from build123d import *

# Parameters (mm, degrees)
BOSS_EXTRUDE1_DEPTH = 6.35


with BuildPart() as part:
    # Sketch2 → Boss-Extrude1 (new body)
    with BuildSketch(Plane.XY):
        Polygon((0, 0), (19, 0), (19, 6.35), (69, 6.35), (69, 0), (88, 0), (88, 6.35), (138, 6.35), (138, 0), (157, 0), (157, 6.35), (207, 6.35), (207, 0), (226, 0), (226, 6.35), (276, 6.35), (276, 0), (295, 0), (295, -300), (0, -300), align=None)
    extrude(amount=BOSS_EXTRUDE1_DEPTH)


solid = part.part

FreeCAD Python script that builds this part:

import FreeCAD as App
import Part
import Sketcher

V = App.Vector

doc = App.newDocument("Part")
params = doc.addObject("Spreadsheet::Sheet", "Params")
for row, (alias, value) in enumerate([
    ("sketch1_width", "19 mm"),
    ("sketch1_width2", "295 mm"),
    ("sketch1_height", "300 mm"),
    ("sketch1_height2", "6.35 mm"),
    ("pad1_length", "6.35 mm"),
], start=1):
    params.set(f"A{row}", alias)
    params.set(f"B{row}", "=" + value)
    params.setAlias(f"B{row}", alias)

body = doc.addObject("PartDesign::Body", "Body")

# Sketch on XY plane
sketch1 = body.newObject("Sketcher::SketchObject", "Sketch")
sketch1.AttachmentSupport = (doc.getObject("XY_Plane"), [""])
sketch1.MapMode = "FlatFace"
sketch1.addGeometry([
    Part.LineSegment(V(19, 0, 0), V(0, 0, 0)),  # 0
    Part.LineSegment(V(0, 0, 0), V(0, -300, 0)),  # 1
    Part.LineSegment(V(0, -300, 0), V(295, -300, 0)),  # 2
    Part.LineSegment(V(295, -300, 0), V(295, 0, 0)),  # 3
    Part.LineSegment(V(295, 0, 0), V(276, 0, 0)),  # 4
    Part.LineSegment(V(276, 0, 0), V(276, 6, 0)),  # 5
    Part.LineSegment(V(276, 6, 0), V(226, 6, 0)),  # 6
    Part.LineSegment(V(226, 6, 0), V(226, 0, 0)),  # 7
    Part.LineSegment(V(226, 0, 0), V(207, 0, 0)),  # 8
    Part.LineSegment(V(207, 0, 0), V(207, 6, 0)),  # 9
    Part.LineSegment(V(207, 6, 0), V(157, 6, 0)),  # 10
    Part.LineSegment(V(157, 6, 0), V(157, 0, 0)),  # 11
    Part.LineSegment(V(157, 0, 0), V(138, 0, 0)),  # 12
    Part.LineSegment(V(138, 0, 0), V(138, 6, 0)),  # 13
    Part.LineSegment(V(138, 6, 0), V(88, 6, 0)),  # 14
    Part.LineSegment(V(88, 6, 0), V(88, 0, 0)),  # 15
    Part.LineSegment(V(88, 0, 0), V(69, 0, 0)),  # 16
    Part.LineSegment(V(69, 0, 0), V(69, 6, 0)),  # 17
    Part.LineSegment(V(69, 6, 0), V(19, 6, 0)),  # 18
    Part.LineSegment(V(19, 6, 0), V(19, 0, 0)),  # 19
], False)
sketch1.addConstraint([
    Sketcher.Constraint("Coincident", 0, 2, 1, 1),
    Sketcher.Constraint("Coincident", 1, 2, 2, 1),
    Sketcher.Constraint("Coincident", 2, 2, 3, 1),
    Sketcher.Constraint("Coincident", 3, 2, 4, 1),
    Sketcher.Constraint("Coincident", 4, 2, 5, 1),
    Sketcher.Constraint("Coincident", 5, 2, 6, 1),
    Sketcher.Constraint("Coincident", 6, 2, 7, 1),
    Sketcher.Constraint("Coincident", 7, 2, 8, 1),
    Sketcher.Constraint("Coincident", 8, 2, 9, 1),
    Sketcher.Constraint("Coincident", 9, 2, 10, 1),
    Sketcher.Constraint("Coincident", 10, 2, 11, 1),
    Sketcher.Constraint("Coincident", 11, 2, 12, 1),
    Sketcher.Constraint("Coincident", 12, 2, 13, 1),
    Sketcher.Constraint("Coincident", 13, 2, 14, 1),
    Sketcher.Constraint("Coincident", 14, 2, 15, 1),
    Sketcher.Constraint("Coincident", 15, 2, 16, 1),
    Sketcher.Constraint("Coincident", 16, 2, 17, 1),
    Sketcher.Constraint("Coincident", 17, 2, 18, 1),
    Sketcher.Constraint("Coincident", 18, 2, 19, 1),
    Sketcher.Constraint("Coincident", 19, 2, 0, 1),
    Sketcher.Constraint("Horizontal", 0),
    Sketcher.Constraint("Vertical", 1),
    Sketcher.Constraint("Horizontal", 2),
    Sketcher.Constraint("Vertical", 3),
    Sketcher.Constraint("Horizontal", 4),
    Sketcher.Constraint("Vertical", 5),
    Sketcher.Constraint("Horizontal", 6),
    Sketcher.Constraint("Vertical", 7),
    Sketcher.Constraint("Horizontal", 8),
    Sketcher.Constraint("Vertical", 9),
    Sketcher.Constraint("Horizontal", 10),
    Sketcher.Constraint("Vertical", 11),
    Sketcher.Constraint("Horizontal", 12),
    Sketcher.Constraint("Vertical", 13),
    Sketcher.Constraint("Horizontal", 14),
    Sketcher.Constraint("Vertical", 15),
    Sketcher.Constraint("Horizontal", 16),
    Sketcher.Constraint("Vertical", 17),
    Sketcher.Constraint("Horizontal", 18),
    Sketcher.Constraint("Vertical", 19),
    Sketcher.Constraint("Coincident", 0, 2, -1, 1),
    Sketcher.Constraint("PointOnObject", 3, 2, -1),
    Sketcher.Constraint("PointOnObject", 7, 2, -1),
    Sketcher.Constraint("PointOnObject", 11, 2, -1),
    Sketcher.Constraint("PointOnObject", 15, 2, -1),
    Sketcher.Constraint("Horizontal", 6, 2, 9, 2),
    Sketcher.Constraint("Horizontal", 10, 2, 13, 2),
    Sketcher.Constraint("Horizontal", 14, 2, 17, 2),
    Sketcher.Constraint("Equal", 0, 4),
    Sketcher.Constraint("Equal", 4, 8),
    Sketcher.Constraint("Equal", 6, 10),
    Sketcher.Constraint("Equal", 8, 12),
    Sketcher.Constraint("Equal", 10, 14),
    Sketcher.Constraint("Equal", 12, 16),
    Sketcher.Constraint("Equal", 14, 18),
    Sketcher.Constraint("DistanceX", 0, 2, 0, 1, 19.0),
    Sketcher.Constraint("DistanceX", 2, 1, 2, 2, 295.0),
    Sketcher.Constraint("DistanceY", 1, 2, 1, 1, 300.0),
    Sketcher.Constraint("DistanceY", 5, 1, 5, 2, 6.35),
])
sketch1.setExpression("Constraints[55]", "Params.sketch1_width")
sketch1.setExpression("Constraints[56]", "Params.sketch1_width2")
sketch1.setExpression("Constraints[57]", "Params.sketch1_height")
sketch1.setExpression("Constraints[58]", "Params.sketch1_height2")
pad1 = body.newObject("PartDesign::Pad", "Pad")
pad1.Profile = sketch1
pad1.setExpression("Length", "Params.pad1_length")

doc.recompute()
